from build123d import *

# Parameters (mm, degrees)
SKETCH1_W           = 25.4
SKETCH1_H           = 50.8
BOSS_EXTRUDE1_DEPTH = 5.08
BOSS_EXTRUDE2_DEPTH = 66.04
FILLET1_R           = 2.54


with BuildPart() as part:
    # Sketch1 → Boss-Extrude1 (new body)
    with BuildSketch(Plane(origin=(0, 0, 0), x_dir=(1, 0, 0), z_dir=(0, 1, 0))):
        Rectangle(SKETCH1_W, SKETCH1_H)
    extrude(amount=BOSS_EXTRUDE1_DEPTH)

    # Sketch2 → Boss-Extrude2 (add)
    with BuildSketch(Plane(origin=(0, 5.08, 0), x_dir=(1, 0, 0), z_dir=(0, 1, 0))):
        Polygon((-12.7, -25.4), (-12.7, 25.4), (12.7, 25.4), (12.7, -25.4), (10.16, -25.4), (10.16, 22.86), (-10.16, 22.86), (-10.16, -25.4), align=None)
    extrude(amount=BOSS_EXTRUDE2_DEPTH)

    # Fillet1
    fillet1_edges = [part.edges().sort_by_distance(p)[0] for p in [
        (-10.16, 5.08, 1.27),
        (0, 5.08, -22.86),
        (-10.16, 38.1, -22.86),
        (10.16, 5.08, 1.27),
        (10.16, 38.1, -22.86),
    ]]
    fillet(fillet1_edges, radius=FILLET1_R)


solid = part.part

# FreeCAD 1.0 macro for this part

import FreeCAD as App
import Part
import Sketcher
Q = App.Units.Quantity


def edges_at(feature, points):
    """Names of the edges that pass closest to the given points."""
    edges = feature.Shape.Edges
    near = lambda p: min(range(len(edges)), key=lambda i: edges[i].distToShape(Part.Vertex(*p))[0])
    return sorted({f"Edge{near(p) + 1}" for p in points})

doc = App.newDocument("Part")
params = doc.addObject("Spreadsheet::Sheet", "Params")
for row, (alias, value) in enumerate([
    ("sketch1_width", "1 in"),
    ("sketch1_height", "2 in"),
    ("pad1_length", "0.2 in"),
    ("sketch2_width", "1 in"),
    ("sketch2_height", "2 in"),
    ("sketch2_width2", "0.1 in"),
    ("sketch2_height2", "1.9 in"),
    ("pad2_length", "2.6 in"),
    ("fillet_radius", "0.1 in"),
], start=1):
    params.set(f"A{row}", alias)
    params.set(f"B{row}", "=" + value)
    params.setAlias(f"B{row}", alias)

body = doc.addObject("PartDesign::Body", "Body")

# Sketch on XZ plane
sketch1 = doc.addObject("Sketcher::SketchObject", "Sketch")
body.addObject(sketch1)
sketch1.AttachmentSupport = (doc.XZ_Plane, [""])
sketch1.MapMode = "FlatFace"
sketch1.addGeometry([
    Part.LineSegment(App.Vector(-12.7, -25.4, 0), App.Vector(-12.7, 25.4, 0)),
    Part.LineSegment(App.Vector(-12.7, 25.4, 0), App.Vector(12.7, 25.4, 0)),
    Part.LineSegment(App.Vector(12.7, 25.4, 0), App.Vector(12.7, -25.4, 0)),
    Part.LineSegment(App.Vector(12.7, -25.4, 0), App.Vector(-12.7, -25.4, 0)),
], False)
sketch1.addConstraint([
    Sketcher.Constraint("Coincident", 0, 2, 1, 1),
    Sketcher.Constraint("Coincident", 1, 2, 2, 1),
    Sketcher.Constraint("Coincident", 2, 2, 3, 1),
    Sketcher.Constraint("Coincident", 3, 2, 0, 1),
    Sketcher.Constraint("Vertical", 0),
    Sketcher.Constraint("Horizontal", 1),
    Sketcher.Constraint("Vertical", 2),
    Sketcher.Constraint("Horizontal", 3),
    Sketcher.Constraint("Symmetric", 0, 2, 2, 2, -1, 1),
    Sketcher.Constraint("DistanceX", 1, 1, 1, 2, Q("1 in")),
    Sketcher.Constraint("DistanceY", 0, 1, 0, 2, Q("2 in")),
])
sketch1.setExpression("Constraints[9]", "Params.sketch1_width")
sketch1.setExpression("Constraints[10]", "Params.sketch1_height")
pad1 = doc.addObject("PartDesign::Pad", "Pad")
body.addObject(pad1)
pad1.Profile = sketch1
pad1.setExpression("Length", "Params.pad1_length")
pad1.Reversed = True

# Sketch on XZ plane
sketch2 = doc.addObject("Sketcher::SketchObject", "Sketch001")
body.addObject(sketch2)
sketch2.AttachmentSupport = (doc.XZ_Plane, [""])
sketch2.MapMode = "FlatFace"
sketch2.AttachmentOffset = App.Placement(App.Vector(0, 0, -0.2 * 25.4), App.Rotation())
sketch2.addGeometry([
    Part.LineSegment(App.Vector(-12.7, -25.4, 0), App.Vector(-12.7, 25.4, 0)),  # 0
    Part.LineSegment(App.Vector(-12.7, 25.4, 0), App.Vector(-10.16, 25.4, 0)),  # 1
    Part.LineSegment(App.Vector(-10.16, 25.4, 0), App.Vector(-10.16, -22.86, 0)),  # 2
    Part.LineSegment(App.Vector(-10.16, -22.86, 0), App.Vector(10.16, -22.86, 0)),  # 3
    Part.LineSegment(App.Vector(10.16, -22.86, 0), App.Vector(10.16, 25.4, 0)),  # 4
    Part.LineSegment(App.Vector(10.16, 25.4, 0), App.Vector(12.7, 25.4, 0)),  # 5
    Part.LineSegment(App.Vector(12.7, 25.4, 0), App.Vector(12.7, -25.4, 0)),  # 6
    Part.LineSegment(App.Vector(12.7, -25.4, 0), App.Vector(-12.7, -25.4, 0)),  # 7
], False)
sketch2.addConstraint([
    Sketcher.Constraint("Coincident", 0, 2, 1, 1),
    Sketcher.Constraint("Coincident", 1, 2, 2, 1),
    Sketcher.Constraint("Coincident", 2, 2, 3, 1),
    Sketcher.Constraint("Coincident", 3, 2, 4, 1),
    Sketcher.Constraint("Coincident", 4, 2, 5, 1),
    Sketcher.Constraint("Coincident", 5, 2, 6, 1),
    Sketcher.Constraint("Coincident", 6, 2, 7, 1),
    Sketcher.Constraint("Coincident", 7, 2, 0, 1),
    Sketcher.Constraint("Vertical", 0),
    Sketcher.Constraint("Horizontal", 1),
    Sketcher.Constraint("Vertical", 2),
    Sketcher.Constraint("Horizontal", 3),
    Sketcher.Constraint("Vertical", 4),
    Sketcher.Constraint("Horizontal", 5),
    Sketcher.Constraint("Vertical", 6),
    Sketcher.Constraint("Horizontal", 7),
    Sketcher.Constraint("Symmetric", 0, 2, 6, 2, -1, 1),
    Sketcher.Constraint("Symmetric", 1, 2, 4, 2, -2),
    Sketcher.Constraint("DistanceX", 7, 2, 7, 1, Q("1 in")),
    Sketcher.Constraint("DistanceY", 0, 1, 0, 2, Q("2 in")),
    Sketcher.Constraint("DistanceX", 1, 1, 1, 2, Q("0.1 in")),
    Sketcher.Constraint("DistanceY", 2, 2, 2, 1, Q("1.9 in")),
])
sketch2.setExpression("Constraints[18]", "Params.sketch2_width")
sketch2.setExpression("Constraints[19]", "Params.sketch2_height")
sketch2.setExpression("Constraints[20]", "Params.sketch2_width2")
sketch2.setExpression("Constraints[21]", "Params.sketch2_height2")
pad2 = doc.addObject("PartDesign::Pad", "Pad001")
body.addObject(pad2)
pad2.Profile = sketch2
pad2.setExpression("Length", "Params.pad2_length")
pad2.Reversed = True
doc.recompute()

fillet = doc.addObject("PartDesign::Fillet", "Fillet")
body.addObject(fillet)
fillet.Base = (pad2, edges_at(pad2, [
    (-10.16, 5.08, 1.27),
    (0, 5.08, -22.86),
    (-10.16, 38.1, -22.86),
    (10.16, 5.08, 1.27),
    (10.16, 38.1, -22.86),
]))
fillet.setExpression("Radius", "Params.fillet_radius")

doc.recompute()
